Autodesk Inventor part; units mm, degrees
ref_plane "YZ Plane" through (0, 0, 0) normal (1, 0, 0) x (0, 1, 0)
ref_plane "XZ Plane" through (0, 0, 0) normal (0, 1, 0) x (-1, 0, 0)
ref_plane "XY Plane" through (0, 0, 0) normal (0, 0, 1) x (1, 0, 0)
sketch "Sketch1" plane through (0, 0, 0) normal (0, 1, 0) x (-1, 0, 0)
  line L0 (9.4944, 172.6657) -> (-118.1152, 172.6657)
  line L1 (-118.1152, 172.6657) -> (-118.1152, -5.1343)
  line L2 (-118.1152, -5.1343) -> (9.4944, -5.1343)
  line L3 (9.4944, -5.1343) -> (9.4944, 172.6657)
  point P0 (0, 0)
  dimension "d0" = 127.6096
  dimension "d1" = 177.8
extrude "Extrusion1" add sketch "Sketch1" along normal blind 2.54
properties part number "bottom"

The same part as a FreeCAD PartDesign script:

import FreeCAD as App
import Part
import Sketcher
Q = App.Units.Quantity

doc = App.newDocument("Part")
body = doc.addObject("PartDesign::Body", "Body")

# Sketch on XZ plane
sketch1 = body.newObject("Sketcher::SketchObject", "Sketch")
sketch1.AttachmentSupport = (doc.getObject("XZ_Plane"), [""])
sketch1.MapMode = "FlatFace"
sketch1.addGeometry([
    Part.LineSegment(App.Vector(-9.4944, -5.1343, 0), App.Vector(-9.4944, 172.6657, 0)),
    Part.LineSegment(App.Vector(-9.4944, 172.6657, 0), App.Vector(118.1152, 172.6657, 0)),
    Part.LineSegment(App.Vector(118.1152, 172.6657, 0), App.Vector(118.1152, -5.1343, 0)),
    Part.LineSegment(App.Vector(118.1152, -5.1343, 0), App.Vector(-9.4944, -5.1343, 0)),
], False)
sketch1.addConstraint([
    Sketcher.Constraint("Coincident", 0, 2, 1, 1),
    Sketcher.Constraint("Coincident", 1, 2, 2, 1),
    Sketcher.Constraint("Coincident", 2, 2, 3, 1),
    Sketcher.Constraint("Coincident", 3, 2, 0, 1),
    Sketcher.Constraint("Vertical", 0),
    Sketcher.Constraint("Horizontal", 1),
    Sketcher.Constraint("Vertical", 2),
    Sketcher.Constraint("Horizontal", 3),
    Sketcher.Constraint("DistanceY", 0, 1, 0, 2, Q("7 in")),
    Sketcher.Constraint("DistanceX", 1, 1, 1, 2, Q("5.024 in")),
    Sketcher.Constraint("DistanceX", 0, 2, -1, 1, Q("0.3738 in")),
    Sketcher.Constraint("DistanceY", -1, 1, 0, 2, 172.6657),
])
pad1 = body.newObject("PartDesign::Pad", "Pad")
pad1.Profile = sketch1
pad1.Length = Q("0.1 in")
pad1.Reversed = True

doc.recompute()
